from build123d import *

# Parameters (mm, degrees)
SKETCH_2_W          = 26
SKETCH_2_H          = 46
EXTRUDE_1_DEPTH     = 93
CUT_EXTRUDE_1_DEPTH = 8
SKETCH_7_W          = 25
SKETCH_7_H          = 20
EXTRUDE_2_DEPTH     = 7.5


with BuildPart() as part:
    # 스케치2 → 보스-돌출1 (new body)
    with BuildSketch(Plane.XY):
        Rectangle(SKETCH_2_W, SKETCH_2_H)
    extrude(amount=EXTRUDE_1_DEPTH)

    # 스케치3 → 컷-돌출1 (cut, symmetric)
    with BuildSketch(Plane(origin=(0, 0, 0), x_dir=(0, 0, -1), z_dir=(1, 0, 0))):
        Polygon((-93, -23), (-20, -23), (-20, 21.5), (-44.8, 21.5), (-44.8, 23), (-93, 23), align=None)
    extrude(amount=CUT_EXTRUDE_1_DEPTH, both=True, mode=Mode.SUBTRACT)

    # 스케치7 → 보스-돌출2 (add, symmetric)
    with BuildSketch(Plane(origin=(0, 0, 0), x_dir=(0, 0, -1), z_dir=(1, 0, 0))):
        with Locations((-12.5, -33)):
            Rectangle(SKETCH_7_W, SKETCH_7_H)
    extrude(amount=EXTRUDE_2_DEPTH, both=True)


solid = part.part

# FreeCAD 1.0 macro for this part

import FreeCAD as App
import Part
import Sketcher
from FreeCAD import Vector
Q = App.Units.Quantity

doc = App.newDocument("Part")
body = doc.addObject("PartDesign::Body", "Body")

# Sketch on XY plane
sketch1 = doc.addObject("Sketcher::SketchObject", "Sketch")
body.addObject(sketch1)
sketch1.AttachmentSupport = (doc.XY_Plane, [""])
sketch1.MapMode = "FlatFace"
sketch1.addGeometry([
    Part.LineSegment(Vector(-13, 23, 0), Vector(-13, -23, 0)),
    Part.LineSegment(Vector(-13, -23, 0), Vector(13, -23, 0)),
    Part.LineSegment(Vector(13, -23, 0), Vector(13, 23, 0)),
    Part.LineSegment(Vector(13, 23, 0), Vector(-13, 23, 0)),
], False)
sketch1.addConstraint([
    Sketcher.Constraint("Coincident", 0, 2, 1, 1),
    Sketcher.Constraint("Coincident", 1, 2, 2, 1),
    Sketcher.Constraint("Coincident", 2, 2, 3, 1),
    Sketcher.Constraint("Coincident", 3, 2, 0, 1),
    Sketcher.Constraint("Vertical", 0),
    Sketcher.Constraint("Horizontal", 1),
    Sketcher.Constraint("Vertical", 2),
    Sketcher.Constraint("Horizontal", 3),
    Sketcher.Constraint("Symmetric", 0, 2, 2, 2, -1, 1),
    Sketcher.Constraint("DistanceX", 1, 1, 1, 2, Q("26 mm")),
    Sketcher.Constraint("DistanceY", 0, 2, 0, 1, Q("46 mm")),
])
pad1 = doc.addObject("PartDesign::Pad", "Pad")
body.addObject(pad1)
pad1.Profile = sketch1
pad1.Length = 93

# Sketch on YZ plane
sketch2 = doc.addObject("Sketcher::SketchObject", "Sketch001")
body.addObject(sketch2)
sketch2.AttachmentSupport = (doc.YZ_Plane, [""])
sketch2.MapMode = "FlatFace"
sketch2.addGeometry([
    Part.LineSegment(Vector(-23, 93, 0), Vector(-23, 20, 0)),  # 0
    Part.LineSegment(Vector(-23, 20, 0), Vector(21.5, 20, 0)),  # 1
    Part.LineSegment(Vector(21.5, 20, 0), Vector(21.5, 44.8, 0)),  # 2
    Part.LineSegment(Vector(21.5, 44.8, 0), Vector(23, 44.8, 0)),  # 3
    Part.LineSegment(Vector(23, 44.8, 0), Vector(23, 93, 0)),  # 4
    Part.LineSegment(Vector(23, 93, 0), Vector(-23, 93, 0)),  # 5
], False)
sketch2.addConstraint([
    Sketcher.Constraint("Coincident", 0, 2, 1, 1),
    Sketcher.Constraint("Coincident", 1, 2, 2, 1),
    Sketcher.Constraint("Coincident", 2, 2, 3, 1),
    Sketcher.Constraint("Coincident", 3, 2, 4, 1),
    Sketcher.Constraint("Coincident", 4, 2, 5, 1),
    Sketcher.Constraint("Coincident", 5, 2, 0, 1),
    Sketcher.Constraint("Vertical", 0),
    Sketcher.Constraint("Horizontal", 1),
    Sketcher.Constraint("Vertical", 2),
    Sketcher.Constraint("Horizontal", 3),
    Sketcher.Constraint("Vertical", 4),
    Sketcher.Constraint("Horizontal", 5),
    Sketcher.Constraint("DistanceX", 5, 2, 5, 1, Q("46 mm")),
    Sketcher.Constraint("DistanceY", 0, 2, 0, 1, Q("73 mm")),
    Sketcher.Constraint("DistanceX", 1, 1, 1, 2, Q("44.5 mm")),
    Sketcher.Constraint("DistanceY", 2, 1, 2, 2, Q("24.8 mm")),
    Sketcher.Constraint("DistanceX", 0, 2, -1, 1, Q("23 mm")),
    Sketcher.Constraint("DistanceY", -1, 1, 0, 2, Q("20 mm")),
])
pocket1 = doc.addObject("PartDesign::Pocket", "Pocket")
body.addObject(pocket1)
pocket1.Profile = sketch2
pocket1.Length = 16
pocket1.Midplane = True

# Sketch on YZ plane
sketch3 = doc.addObject("Sketcher::SketchObject", "Sketch002")
body.addObject(sketch3)
sketch3.AttachmentSupport = (doc.YZ_Plane, [""])
sketch3.MapMode = "FlatFace"
sketch3.addGeometry([
    Part.LineSegment(Vector(-23, 25, 0), Vector(-43, 25, 0)),
    Part.LineSegment(Vector(-43, 25, 0), Vector(-43, 0, 0)),
    Part.LineSegment(Vector(-43, 0, 0), Vector(-23, 0, 0)),
    Part.LineSegment(Vector(-23, 0, 0), Vector(-23, 25, 0)),
], False)
sketch3.addConstraint([
    Sketcher.Constraint("Coincident", 0, 2, 1, 1),
    Sketcher.Constraint("Coincident", 1, 2, 2, 1),
    Sketcher.Constraint("Coincident", 2, 2, 3, 1),
    Sketcher.Constraint("Coincident", 3, 2, 0, 1),
    Sketcher.Constraint("Horizontal", 0),
    Sketcher.Constraint("Vertical", 1),
    Sketcher.Constraint("Horizontal", 2),
    Sketcher.Constraint("Vertical", 3),
    Sketcher.Constraint("PointOnObject", 1, 2, -1),
    Sketcher.Constraint("DistanceX", 0, 2, 0, 1, Q("20 mm")),
    Sketcher.Constraint("DistanceY", 1, 2, 1, 1, Q("25 mm")),
    Sketcher.Constraint("DistanceX", 0, 2, -1, 1, Q("43 mm")),
])
pad2 = doc.addObject("PartDesign::Pad", "Pad001")
body.addObject(pad2)
pad2.Profile = sketch3
pad2.Length = 15
pad2.Midplane = True

doc.recompute()
